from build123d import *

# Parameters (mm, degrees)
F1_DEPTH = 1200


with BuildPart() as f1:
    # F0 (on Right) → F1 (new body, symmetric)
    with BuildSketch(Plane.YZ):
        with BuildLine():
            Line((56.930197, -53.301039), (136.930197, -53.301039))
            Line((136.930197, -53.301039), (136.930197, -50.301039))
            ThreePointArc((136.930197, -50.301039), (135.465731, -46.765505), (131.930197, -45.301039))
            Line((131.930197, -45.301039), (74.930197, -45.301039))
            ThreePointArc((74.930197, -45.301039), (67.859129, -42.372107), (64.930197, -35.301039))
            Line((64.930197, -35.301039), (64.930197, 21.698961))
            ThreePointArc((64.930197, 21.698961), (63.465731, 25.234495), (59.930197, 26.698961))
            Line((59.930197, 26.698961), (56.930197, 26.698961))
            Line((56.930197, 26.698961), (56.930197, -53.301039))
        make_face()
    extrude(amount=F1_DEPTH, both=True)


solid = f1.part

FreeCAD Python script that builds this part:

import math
import FreeCAD as App
import Part
import Sketcher
Q = App.Units.Quantity

doc = App.newDocument("Part")
params = doc.addObject("Spreadsheet::Sheet", "Params")
for row, (alias, value) in enumerate([
    ("sketch1_radius", "5 mm"),
    ("sketch1_radius2", "9.999999 mm"),
    ("sketch1_width", "80 mm"),
    ("sketch1_width2", "57 mm"),
    ("pad1_length", "2400 mm"),
], start=1):
    params.set(f"A{row}", alias)
    params.set(f"B{row}", "=" + value)
    params.setAlias(f"B{row}", alias)

body = doc.addObject("PartDesign::Body", "Body")

sketch1 = doc.addObject("Sketcher::SketchObject", "Sketch")
body.addObject(sketch1)
sketch1.AttachmentSupport = (doc.YZ_Plane, [""])
sketch1.MapMode = "FlatFace"
sketch1.addGeometry(Part.LineSegment(App.Vector(56.930197, -53.301039, 0), App.Vector(136.930197, -53.301039, 0)), False)
sketch1.addGeometry(Part.LineSegment(App.Vector(136.930197, -53.301039, 0), App.Vector(136.930197, -50.301039, 0)), False)
sketch1.addGeometry(Part.ArcOfCircle(Part.Circle(App.Vector(131.930197, -50.301039, 0), App.Vector(0, 0, 1), 5), math.radians(-0.000004), math.radians(90.000004)), False)
sketch1.addGeometry(Part.LineSegment(App.Vector(131.930197, -45.301039, 0), App.Vector(74.930197, -45.301039, 0)), False)
sketch1.addGeometry(Part.ArcOfCircle(Part.Circle(App.Vector(74.930196, -35.30104, 0), App.Vector(0, 0, 1), 9.999999), math.radians(179.999996), math.radians(270.000004)), False)
sketch1.addGeometry(Part.LineSegment(App.Vector(64.930197, -35.301039, 0), App.Vector(64.930197, 21.698961, 0)), False)
sketch1.addGeometry(Part.ArcOfCircle(Part.Circle(App.Vector(59.930197, 21.698961, 0), App.Vector(0, 0, 1), 5), math.radians(-0.000004), math.radians(90.000004)), False)
sketch1.addGeometry(Part.LineSegment(App.Vector(59.930197, 26.698961, 0), App.Vector(56.930197, 26.698961, 0)), False)
sketch1.addGeometry(Part.LineSegment(App.Vector(56.930197, 26.698961, 0), App.Vector(56.930197, -53.301039, 0)), False)
sketch1.addConstraint(Sketcher.Constraint("Coincident", 0, 2, 1, 1))
sketch1.addConstraint(Sketcher.Constraint("Tangent", 1, 2, 2, 1))
sketch1.addConstraint(Sketcher.Constraint("Tangent", 2, 2, 3, 1))
sketch1.addConstraint(Sketcher.Constraint("Tangent", 3, 2, 4, 2))
sketch1.addConstraint(Sketcher.Constraint("Tangent", 4, 1, 5, 1))
sketch1.addConstraint(Sketcher.Constraint("Tangent", 5, 2, 6, 1))
sketch1.addConstraint(Sketcher.Constraint("Tangent", 6, 2, 7, 1))
sketch1.addConstraint(Sketcher.Constraint("Coincident", 7, 2, 8, 1))
sketch1.addConstraint(Sketcher.Constraint("Coincident", 8, 2, 0, 1))
sketch1.addConstraint(Sketcher.Constraint("Horizontal", 0))
sketch1.addConstraint(Sketcher.Constraint("Vertical", 1))
sketch1.addConstraint(Sketcher.Constraint("Horizontal", 3))
sketch1.addConstraint(Sketcher.Constraint("Vertical", 5))
sketch1.addConstraint(Sketcher.Constraint("Horizontal", 7))
sketch1.addConstraint(Sketcher.Constraint("Vertical", 8))
sketch1.addConstraint(Sketcher.Constraint("Equal", 2, 6))
sketch1.addConstraint(Sketcher.Constraint("Equal", 7, 1))
sketch1.addConstraint(Sketcher.Constraint("Equal", 3, 5))
sketch1.addConstraint(Sketcher.Constraint("Radius", 2, Q("5 mm")))
sketch1.addConstraint(Sketcher.Constraint("Radius", 4, Q("9.999999 mm")))
sketch1.addConstraint(Sketcher.Constraint("DistanceX", 0, 1, 0, 2, Q("80 mm")))
sketch1.addConstraint(Sketcher.Constraint("DistanceX", 3, 2, 3, 1, Q("57 mm")))
sketch1.addConstraint(Sketcher.Constraint("DistanceY", 2, 3, -1, 1, Q("50.301039 mm")))
sketch1.addConstraint(Sketcher.Constraint("DistanceX", -1, 1, 2, 3, Q("131.930197 mm")))
sketch1.setExpression("Constraints[18]", "Params.sketch1_radius")
sketch1.setExpression("Constraints[19]", "Params.sketch1_radius2")
sketch1.setExpression("Constraints[20]", "Params.sketch1_width")
sketch1.setExpression("Constraints[21]", "Params.sketch1_width2")
pad1 = doc.addObject("PartDesign::Pad", "Pad")
body.addObject(pad1)
pad1.Profile = sketch1
pad1.setExpression("Length", "Params.pad1_length")
pad1.Midplane = True

doc.recompute()
